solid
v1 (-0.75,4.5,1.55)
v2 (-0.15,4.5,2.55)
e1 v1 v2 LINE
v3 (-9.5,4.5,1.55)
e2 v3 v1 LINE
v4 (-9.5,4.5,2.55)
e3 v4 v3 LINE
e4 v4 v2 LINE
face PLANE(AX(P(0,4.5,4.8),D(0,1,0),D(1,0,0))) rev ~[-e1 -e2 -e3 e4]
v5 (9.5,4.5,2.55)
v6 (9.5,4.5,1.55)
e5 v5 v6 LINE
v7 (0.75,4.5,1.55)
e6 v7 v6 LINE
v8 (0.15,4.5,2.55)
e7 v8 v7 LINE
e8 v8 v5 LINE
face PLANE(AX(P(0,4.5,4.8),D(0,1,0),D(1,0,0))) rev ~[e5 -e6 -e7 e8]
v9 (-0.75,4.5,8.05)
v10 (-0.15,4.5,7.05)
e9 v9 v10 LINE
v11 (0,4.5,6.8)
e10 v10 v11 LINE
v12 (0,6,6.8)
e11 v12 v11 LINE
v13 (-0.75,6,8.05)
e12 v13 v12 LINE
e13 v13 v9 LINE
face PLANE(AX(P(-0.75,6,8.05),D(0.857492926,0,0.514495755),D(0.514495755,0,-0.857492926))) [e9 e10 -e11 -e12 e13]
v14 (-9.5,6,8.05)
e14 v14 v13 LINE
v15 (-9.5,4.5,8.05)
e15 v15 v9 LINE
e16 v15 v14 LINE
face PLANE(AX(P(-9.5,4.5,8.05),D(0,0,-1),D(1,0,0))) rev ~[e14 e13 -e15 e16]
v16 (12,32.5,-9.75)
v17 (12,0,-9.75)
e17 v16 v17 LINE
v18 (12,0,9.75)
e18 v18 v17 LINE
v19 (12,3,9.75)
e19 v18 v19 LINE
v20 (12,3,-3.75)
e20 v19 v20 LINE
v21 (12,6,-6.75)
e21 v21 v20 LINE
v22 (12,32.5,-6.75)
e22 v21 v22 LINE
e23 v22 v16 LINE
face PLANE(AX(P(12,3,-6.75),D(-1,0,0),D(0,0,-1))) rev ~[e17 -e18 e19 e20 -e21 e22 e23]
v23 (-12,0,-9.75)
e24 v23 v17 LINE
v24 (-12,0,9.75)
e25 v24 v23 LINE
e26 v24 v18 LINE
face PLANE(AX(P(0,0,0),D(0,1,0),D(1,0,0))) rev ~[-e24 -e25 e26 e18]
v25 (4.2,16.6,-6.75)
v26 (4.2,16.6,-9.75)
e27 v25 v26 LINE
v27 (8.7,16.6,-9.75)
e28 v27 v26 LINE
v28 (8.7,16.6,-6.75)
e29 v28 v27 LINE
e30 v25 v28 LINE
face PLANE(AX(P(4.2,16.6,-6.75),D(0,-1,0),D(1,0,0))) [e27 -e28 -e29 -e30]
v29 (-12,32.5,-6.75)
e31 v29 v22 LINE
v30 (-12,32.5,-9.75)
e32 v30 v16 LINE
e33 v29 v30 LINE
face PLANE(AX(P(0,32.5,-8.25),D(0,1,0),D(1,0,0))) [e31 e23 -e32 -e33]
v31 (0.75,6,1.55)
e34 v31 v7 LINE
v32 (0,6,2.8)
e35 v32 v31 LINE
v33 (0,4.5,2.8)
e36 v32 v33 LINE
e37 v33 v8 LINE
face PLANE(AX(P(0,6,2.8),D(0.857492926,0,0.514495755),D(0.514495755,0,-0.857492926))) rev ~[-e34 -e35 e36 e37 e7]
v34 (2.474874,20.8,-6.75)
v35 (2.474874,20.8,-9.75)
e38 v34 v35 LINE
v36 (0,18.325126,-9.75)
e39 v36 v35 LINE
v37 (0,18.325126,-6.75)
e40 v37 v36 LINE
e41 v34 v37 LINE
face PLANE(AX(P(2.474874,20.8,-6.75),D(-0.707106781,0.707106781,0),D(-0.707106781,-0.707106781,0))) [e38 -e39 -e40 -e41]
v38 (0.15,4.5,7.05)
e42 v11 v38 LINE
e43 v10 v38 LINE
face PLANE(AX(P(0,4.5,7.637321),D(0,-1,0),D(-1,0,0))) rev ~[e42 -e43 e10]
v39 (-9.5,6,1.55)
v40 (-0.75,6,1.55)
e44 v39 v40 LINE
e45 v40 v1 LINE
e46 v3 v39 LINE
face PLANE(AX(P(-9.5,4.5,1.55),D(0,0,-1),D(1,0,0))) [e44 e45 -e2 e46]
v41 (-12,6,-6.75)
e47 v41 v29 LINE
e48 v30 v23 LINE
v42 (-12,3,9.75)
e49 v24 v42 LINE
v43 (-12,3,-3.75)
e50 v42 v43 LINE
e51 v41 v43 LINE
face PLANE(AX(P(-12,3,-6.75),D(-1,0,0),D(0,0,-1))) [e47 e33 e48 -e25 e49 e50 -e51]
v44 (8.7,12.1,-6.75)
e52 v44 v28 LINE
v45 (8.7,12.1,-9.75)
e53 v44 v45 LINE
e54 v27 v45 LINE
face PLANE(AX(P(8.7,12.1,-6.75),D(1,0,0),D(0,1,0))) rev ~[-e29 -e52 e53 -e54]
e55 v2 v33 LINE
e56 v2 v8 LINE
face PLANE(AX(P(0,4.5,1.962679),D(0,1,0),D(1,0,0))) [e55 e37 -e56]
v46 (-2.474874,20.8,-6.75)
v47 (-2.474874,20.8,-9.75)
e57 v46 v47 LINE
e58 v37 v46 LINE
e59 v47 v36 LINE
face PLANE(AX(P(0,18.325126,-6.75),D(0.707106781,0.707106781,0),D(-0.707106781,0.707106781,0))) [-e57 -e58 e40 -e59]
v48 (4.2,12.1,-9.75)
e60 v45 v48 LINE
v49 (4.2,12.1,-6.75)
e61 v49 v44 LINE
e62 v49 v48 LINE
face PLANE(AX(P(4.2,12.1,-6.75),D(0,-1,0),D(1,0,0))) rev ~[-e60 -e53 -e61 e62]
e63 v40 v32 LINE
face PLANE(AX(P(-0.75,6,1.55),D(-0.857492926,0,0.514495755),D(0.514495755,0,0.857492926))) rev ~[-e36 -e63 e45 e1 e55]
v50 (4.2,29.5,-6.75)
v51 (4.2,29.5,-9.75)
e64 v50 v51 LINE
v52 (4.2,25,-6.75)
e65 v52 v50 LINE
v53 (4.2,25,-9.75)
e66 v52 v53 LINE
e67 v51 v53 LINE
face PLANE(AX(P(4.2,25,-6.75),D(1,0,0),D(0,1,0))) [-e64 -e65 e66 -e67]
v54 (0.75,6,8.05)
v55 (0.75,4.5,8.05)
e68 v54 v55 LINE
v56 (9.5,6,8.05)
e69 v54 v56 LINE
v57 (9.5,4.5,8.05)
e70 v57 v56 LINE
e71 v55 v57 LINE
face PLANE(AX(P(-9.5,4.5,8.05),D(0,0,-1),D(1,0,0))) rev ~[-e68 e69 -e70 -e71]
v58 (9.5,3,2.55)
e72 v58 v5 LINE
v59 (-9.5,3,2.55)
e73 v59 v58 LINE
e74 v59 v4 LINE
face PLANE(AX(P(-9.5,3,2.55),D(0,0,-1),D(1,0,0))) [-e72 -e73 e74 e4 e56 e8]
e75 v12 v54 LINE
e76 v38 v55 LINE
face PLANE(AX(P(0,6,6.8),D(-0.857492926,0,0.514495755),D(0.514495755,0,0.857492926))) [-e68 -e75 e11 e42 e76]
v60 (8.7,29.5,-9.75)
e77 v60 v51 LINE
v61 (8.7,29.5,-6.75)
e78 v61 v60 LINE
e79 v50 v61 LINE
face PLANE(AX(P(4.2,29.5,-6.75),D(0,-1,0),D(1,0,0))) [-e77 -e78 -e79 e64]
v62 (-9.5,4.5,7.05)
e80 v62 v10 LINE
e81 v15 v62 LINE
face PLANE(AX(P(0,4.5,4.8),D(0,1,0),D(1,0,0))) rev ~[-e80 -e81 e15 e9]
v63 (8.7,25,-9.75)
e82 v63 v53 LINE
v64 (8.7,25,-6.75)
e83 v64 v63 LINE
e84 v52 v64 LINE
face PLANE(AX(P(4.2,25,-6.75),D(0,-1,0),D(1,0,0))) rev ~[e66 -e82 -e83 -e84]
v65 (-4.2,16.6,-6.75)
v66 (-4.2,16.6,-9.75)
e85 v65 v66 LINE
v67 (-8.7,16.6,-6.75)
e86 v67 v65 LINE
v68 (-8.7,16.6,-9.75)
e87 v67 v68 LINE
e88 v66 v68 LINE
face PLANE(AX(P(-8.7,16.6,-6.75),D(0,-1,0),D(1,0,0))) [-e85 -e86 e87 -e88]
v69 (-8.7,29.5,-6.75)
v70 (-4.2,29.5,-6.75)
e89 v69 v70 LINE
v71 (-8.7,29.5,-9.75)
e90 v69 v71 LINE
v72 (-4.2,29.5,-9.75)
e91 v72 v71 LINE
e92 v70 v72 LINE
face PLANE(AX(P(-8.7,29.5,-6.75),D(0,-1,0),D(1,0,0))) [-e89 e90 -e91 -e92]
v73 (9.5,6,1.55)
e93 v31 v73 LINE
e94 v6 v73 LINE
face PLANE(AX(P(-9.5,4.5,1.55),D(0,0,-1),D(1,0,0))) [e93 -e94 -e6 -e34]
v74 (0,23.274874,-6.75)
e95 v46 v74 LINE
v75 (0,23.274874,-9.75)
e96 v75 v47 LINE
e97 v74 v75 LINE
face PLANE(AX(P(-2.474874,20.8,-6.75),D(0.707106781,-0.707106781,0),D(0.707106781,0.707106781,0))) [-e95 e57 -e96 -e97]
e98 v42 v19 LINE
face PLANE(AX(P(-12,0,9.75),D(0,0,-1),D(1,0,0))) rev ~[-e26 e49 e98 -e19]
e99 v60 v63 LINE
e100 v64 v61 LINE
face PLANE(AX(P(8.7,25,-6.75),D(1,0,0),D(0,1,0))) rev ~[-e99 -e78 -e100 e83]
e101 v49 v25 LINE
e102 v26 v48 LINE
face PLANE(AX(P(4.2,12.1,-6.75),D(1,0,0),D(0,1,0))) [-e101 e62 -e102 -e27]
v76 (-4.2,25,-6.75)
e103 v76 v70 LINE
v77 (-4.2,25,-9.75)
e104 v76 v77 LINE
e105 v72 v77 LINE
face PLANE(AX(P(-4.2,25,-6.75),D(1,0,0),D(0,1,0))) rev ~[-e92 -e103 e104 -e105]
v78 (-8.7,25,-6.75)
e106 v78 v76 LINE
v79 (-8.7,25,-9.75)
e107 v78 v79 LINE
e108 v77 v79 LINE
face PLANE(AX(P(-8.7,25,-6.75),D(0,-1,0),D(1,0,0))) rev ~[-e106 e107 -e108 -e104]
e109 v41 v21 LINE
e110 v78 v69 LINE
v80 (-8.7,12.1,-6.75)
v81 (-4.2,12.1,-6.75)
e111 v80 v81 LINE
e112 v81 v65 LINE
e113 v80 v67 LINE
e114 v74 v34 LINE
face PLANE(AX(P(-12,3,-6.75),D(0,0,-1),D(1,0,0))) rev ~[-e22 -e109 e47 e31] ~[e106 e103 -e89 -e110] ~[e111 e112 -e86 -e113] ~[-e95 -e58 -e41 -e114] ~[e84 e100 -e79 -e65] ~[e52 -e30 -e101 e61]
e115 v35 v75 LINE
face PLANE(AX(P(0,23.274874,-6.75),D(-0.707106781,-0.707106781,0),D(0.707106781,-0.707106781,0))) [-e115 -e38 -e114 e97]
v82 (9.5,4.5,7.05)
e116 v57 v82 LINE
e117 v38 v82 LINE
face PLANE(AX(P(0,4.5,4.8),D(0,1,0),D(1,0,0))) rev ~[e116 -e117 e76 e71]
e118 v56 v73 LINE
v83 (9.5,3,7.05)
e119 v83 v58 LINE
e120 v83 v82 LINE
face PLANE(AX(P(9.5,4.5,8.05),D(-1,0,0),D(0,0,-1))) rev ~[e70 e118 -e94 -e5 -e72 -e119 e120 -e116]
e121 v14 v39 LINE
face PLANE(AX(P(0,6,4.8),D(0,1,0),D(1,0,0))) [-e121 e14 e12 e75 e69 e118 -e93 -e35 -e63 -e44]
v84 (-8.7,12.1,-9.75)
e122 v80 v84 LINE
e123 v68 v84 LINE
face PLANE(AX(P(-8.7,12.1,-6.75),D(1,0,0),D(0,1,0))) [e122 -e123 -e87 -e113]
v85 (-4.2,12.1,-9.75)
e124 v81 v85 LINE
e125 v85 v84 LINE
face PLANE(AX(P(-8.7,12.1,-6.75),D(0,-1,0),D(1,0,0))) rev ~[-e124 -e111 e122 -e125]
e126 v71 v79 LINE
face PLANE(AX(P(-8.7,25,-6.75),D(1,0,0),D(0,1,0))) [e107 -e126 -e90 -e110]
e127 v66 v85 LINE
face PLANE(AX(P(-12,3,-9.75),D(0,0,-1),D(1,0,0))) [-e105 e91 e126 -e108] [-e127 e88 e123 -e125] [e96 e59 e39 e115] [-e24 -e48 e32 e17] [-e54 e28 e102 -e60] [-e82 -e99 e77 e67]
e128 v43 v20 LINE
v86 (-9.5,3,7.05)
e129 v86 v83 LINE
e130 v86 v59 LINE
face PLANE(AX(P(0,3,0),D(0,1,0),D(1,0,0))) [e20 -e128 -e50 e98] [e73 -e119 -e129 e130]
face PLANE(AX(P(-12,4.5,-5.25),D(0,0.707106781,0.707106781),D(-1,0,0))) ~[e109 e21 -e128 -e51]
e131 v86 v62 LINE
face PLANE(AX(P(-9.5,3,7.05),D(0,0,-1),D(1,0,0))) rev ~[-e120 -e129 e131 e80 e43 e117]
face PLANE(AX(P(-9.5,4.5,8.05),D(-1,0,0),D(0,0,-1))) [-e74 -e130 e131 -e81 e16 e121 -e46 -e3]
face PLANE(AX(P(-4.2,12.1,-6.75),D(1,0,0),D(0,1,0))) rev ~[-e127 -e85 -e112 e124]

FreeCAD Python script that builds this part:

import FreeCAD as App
import Part
import Sketcher

V = App.Vector
Q = App.Units.Quantity


def edges_at(feature, points):
    """Names of the edges that pass closest to the given points."""
    edges = feature.Shape.Edges
    near = lambda p: min(range(len(edges)), key=lambda i: edges[i].distToShape(Part.Vertex(*p))[0])
    return sorted({f"Edge{near(p) + 1}" for p in points})


def add_polygon(sketch, points):
    """Adds a closed chain of lines whose ends are joined by coincident constraints."""
    first, n = sketch.GeometryCount, len(points)
    for a, b in zip(points, points[1:] + points[:1]):
        sketch.addGeometry(Part.LineSegment(App.Vector(*a, 0), App.Vector(*b, 0)), False)
    for i in range(n):
        sketch.addConstraint(Sketcher.Constraint("Coincident", first + i, 2, first + (i + 1) % n, 1))

doc = App.newDocument("Part")
body = doc.addObject("PartDesign::Body", "Body")

# Sketch on XZ plane
sketch1 = body.newObject("Sketcher::SketchObject", "Sketch")
sketch1.AttachmentSupport = (doc.getObject("XZ_Plane"), [""])
sketch1.MapMode = "FlatFace"
add_polygon(sketch1, [(-12, -10), (-12, 10), (12, 10), (12, -10)])  # lines 0-3
sketch1.addConstraint(Sketcher.Constraint("Vertical", 0))
sketch1.addConstraint(Sketcher.Constraint("Horizontal", 1))
sketch1.addConstraint(Sketcher.Constraint("Vertical", 2))
sketch1.addConstraint(Sketcher.Constraint("Horizontal", 3))
sketch1.addConstraint(Sketcher.Constraint("Symmetric", 0, 2, 2, 2, -1, 1))
sketch1.addConstraint(Sketcher.Constraint("DistanceX", 1, 1, 1, 2, Q("24 mm")))
sketch1.addConstraint(Sketcher.Constraint("DistanceY", 0, 1, 0, 2, Q("19.5 mm")))
pad1 = body.newObject("PartDesign::Pad", "Pad")
pad1.Profile = sketch1
pad1.Length = 3
pad1.Reversed = True

# Sketch on XZ plane
sketch2 = body.newObject("Sketcher::SketchObject", "Sketch001")
sketch2.AttachmentSupport = (doc.getObject("XZ_Plane"), [""])
sketch2.MapMode = "FlatFace"
sketch2.AttachmentOffset = App.Placement(V(0, 0, -3), App.Rotation())
add_polygon(sketch2, [(-9.5, 2.5), (-9.5, 7), (9.5, 7), (9.5, 2.5)])  # lines 0-3
sketch2.addConstraint(Sketcher.Constraint("Vertical", 0))
sketch2.addConstraint(Sketcher.Constraint("Horizontal", 1))
sketch2.addConstraint(Sketcher.Constraint("Vertical", 2))
sketch2.addConstraint(Sketcher.Constraint("Horizontal", 3))
sketch2.addConstraint(Sketcher.Constraint("DistanceX", 1, 1, 1, 2, Q("19 mm")))
sketch2.addConstraint(Sketcher.Constraint("DistanceY", 0, 1, 0, 2, Q("4.5 mm")))
sketch2.addConstraint(Sketcher.Constraint("DistanceX", 0, 2, -1, 1, Q("9.5 mm")))
sketch2.addConstraint(Sketcher.Constraint("DistanceY", -1, 1, 0, 2, Q("7.05 mm")))
pad2 = body.newObject("PartDesign::Pad", "Pad001")
pad2.Profile = sketch2
pad2.Length = 1.5
pad2.Reversed = True

# Sketch on XZ plane
sketch3 = body.newObject("Sketcher::SketchObject", "Sketch002")
sketch3.AttachmentSupport = (doc.getObject("XZ_Plane"), [""])
sketch3.MapMode = "FlatFace"
sketch3.AttachmentOffset = App.Placement(V(0, 0, -4.5), App.Rotation())
add_polygon(sketch3, [(-10, 2), (-10, 8), (10, 8), (10, 2)])  # lines 0-3
sketch3.addConstraint(Sketcher.Constraint("Vertical", 0))
sketch3.addConstraint(Sketcher.Constraint("Horizontal", 1))
sketch3.addConstraint(Sketcher.Constraint("Vertical", 2))
sketch3.addConstraint(Sketcher.Constraint("Horizontal", 3))
sketch3.addConstraint(Sketcher.Constraint("DistanceX", 1, 1, 1, 2, Q("19 mm")))
sketch3.addConstraint(Sketcher.Constraint("DistanceY", 0, 1, 0, 2, Q("6.5 mm")))
sketch3.addConstraint(Sketcher.Constraint("DistanceX", 0, 2, -1, 1, Q("9.5 mm")))
sketch3.addConstraint(Sketcher.Constraint("DistanceY", -1, 1, 0, 2, Q("8.05 mm")))
pad3 = body.newObject("PartDesign::Pad", "Pad002")
pad3.Profile = sketch3
pad3.Length = 1.5
pad3.Reversed = True

# Sketch on XZ plane
sketch4 = body.newObject("Sketcher::SketchObject", "Sketch003")
sketch4.AttachmentSupport = (doc.getObject("XZ_Plane"), [""])
sketch4.MapMode = "FlatFace"
sketch4.AttachmentOffset = App.Placement(V(0, 0, -6), App.Rotation())
add_polygon(sketch4, [(0, 2.8), (0.8, 1.6), (-0.8, 1.6)])  # lines 0-2
add_polygon(sketch4, [(0.8, 8.1), (0, 6.8), (-0.8, 8.1)])  # lines 3-5
sketch4.addConstraint(Sketcher.Constraint("Horizontal", 1))
sketch4.addConstraint(Sketcher.Constraint("Horizontal", 5))
sketch4.addConstraint(Sketcher.Constraint("PointOnObject", 2, 2, -2))
sketch4.addConstraint(Sketcher.Constraint("PointOnObject", 3, 2, -2))
sketch4.addConstraint(Sketcher.Constraint("Parallel", 2, 3))
sketch4.addConstraint(Sketcher.Constraint("Parallel", 0, 4))
sketch4.addConstraint(Sketcher.Constraint("Vertical", 1, 2, 4, 2))
sketch4.addConstraint(Sketcher.Constraint("Vertical", 0, 2, 5, 2))
sketch4.addConstraint(Sketcher.Constraint("DistanceX", 1, 2, 1, 1, Q("1.5 mm")))
sketch4.addConstraint(Sketcher.Constraint("DistanceY", 2, 2, 3, 2, Q("4 mm")))
sketch4.addConstraint(Sketcher.Constraint("DistanceY", -1, 1, 2, 2, Q("2.8 mm")))
sketch4.addConstraint(Sketcher.Constraint("DistanceY", 1, 2, 4, 2, Q("6.5 mm")))
pocket1 = body.newObject("PartDesign::Pocket", "Pocket")
pocket1.Profile = sketch4
pocket1.Length = 1.5
pocket1.Reversed = True

# Sketch on XZ plane
sketch5 = body.newObject("Sketcher::SketchObject", "Sketch004")
sketch5.AttachmentSupport = (doc.getObject("XZ_Plane"), [""])
sketch5.MapMode = "FlatFace"
sketch5.AttachmentOffset = App.Placement(V(0, 0, -3), App.Rotation())
add_polygon(sketch5, [(-12, -9.8), (-12, -6.8), (12, -6.8), (12, -9.8)])  # lines 0-3
sketch5.addConstraint(Sketcher.Constraint("Vertical", 0))
sketch5.addConstraint(Sketcher.Constraint("Horizontal", 1))
sketch5.addConstraint(Sketcher.Constraint("Vertical", 2))
sketch5.addConstraint(Sketcher.Constraint("Horizontal", 3))
sketch5.addConstraint(Sketcher.Constraint("DistanceX", 1, 1, 1, 2, Q("24 mm")))
sketch5.addConstraint(Sketcher.Constraint("DistanceY", 0, 1, 0, 2, Q("3 mm")))
sketch5.addConstraint(Sketcher.Constraint("DistanceX", 0, 2, -1, 1, Q("12 mm")))
sketch5.addConstraint(Sketcher.Constraint("DistanceY", 0, 2, -1, 1, Q("6.75 mm")))
pad4 = body.newObject("PartDesign::Pad", "Pad003")
pad4.Profile = sketch5
pad4.Length = 29.5
pad4.Reversed = True

# Sketch on XY plane
sketch6 = body.newObject("Sketcher::SketchObject", "Sketch005")
sketch6.AttachmentSupport = (doc.getObject("XY_Plane"), [""])
sketch6.MapMode = "FlatFace"
sketch6.AttachmentOffset = App.Placement(V(0, 0, -6.75), App.Rotation())
add_polygon(sketch6, [(-8.7, 29.5), (-8.7, 25), (-4.2, 25), (-4.2, 29.5)])  # lines 0-3
add_polygon(sketch6, [(-8.7, 16.6), (-8.7, 12.1), (-4.2, 12.1), (-4.2, 16.6)])  # lines 4-7
add_polygon(sketch6, [(4.2, 16.6), (4.2, 12.1), (8.7, 12.1), (8.7, 16.6)])  # lines 8-11
add_polygon(sketch6, [(4.2, 29.5), (4.2, 25), (8.7, 25), (8.7, 29.5)])  # lines 12-15
add_polygon(sketch6, [(0, 23.3), (-2.5, 20.8), (0, 18.3), (2.5, 20.8)])  # lines 16-19
sketch6.addConstraint(Sketcher.Constraint("Vertical", 0))
sketch6.addConstraint(Sketcher.Constraint("Horizontal", 1))
sketch6.addConstraint(Sketcher.Constraint("Vertical", 2))
sketch6.addConstraint(Sketcher.Constraint("Horizontal", 3))
sketch6.addConstraint(Sketcher.Constraint("Vertical", 4))
sketch6.addConstraint(Sketcher.Constraint("Horizontal", 5))
sketch6.addConstraint(Sketcher.Constraint("Vertical", 6))
sketch6.addConstraint(Sketcher.Constraint("Horizontal", 7))
sketch6.addConstraint(Sketcher.Constraint("Vertical", 8))
sketch6.addConstraint(Sketcher.Constraint("Horizontal", 9))
sketch6.addConstraint(Sketcher.Constraint("Vertical", 10))
sketch6.addConstraint(Sketcher.Constraint("Horizontal", 11))
sketch6.addConstraint(Sketcher.Constraint("Vertical", 12))
sketch6.addConstraint(Sketcher.Constraint("Horizontal", 13))
sketch6.addConstraint(Sketcher.Constraint("Vertical", 14))
sketch6.addConstraint(Sketcher.Constraint("Horizontal", 15))
sketch6.addConstraint(Sketcher.Constraint("Symmetric", 5, 2, 8, 2, -2))
sketch6.addConstraint(Sketcher.Constraint("Symmetric", 7, 2, 10, 2, -2))
sketch6.addConstraint(Sketcher.Constraint("Symmetric", 1, 2, 12, 2, -2))
sketch6.addConstraint(Sketcher.Constraint("Symmetric", 3, 2, 14, 2, -2))
sketch6.addConstraint(Sketcher.Constraint("Symmetric", 16, 2, 18, 2, -2))
sketch6.addConstraint(Sketcher.Constraint("PointOnObject", 17, 2, -2))
sketch6.addConstraint(Sketcher.Constraint("PointOnObject", 19, 2, -2))
sketch6.addConstraint(Sketcher.Constraint("Perpendicular", 16, 17))
sketch6.addConstraint(Sketcher.Constraint("Perpendicular", 17, 18))
sketch6.addConstraint(Sketcher.Constraint("Vertical", 3, 2, 4, 2))
sketch6.addConstraint(Sketcher.Constraint("Vertical", 2, 2, 5, 2))
sketch6.addConstraint(Sketcher.Constraint("Equal", 15, 0))
sketch6.addConstraint(Sketcher.Constraint("Equal", 2, 4))
sketch6.addConstraint(Sketcher.Constraint("DistanceX", 1, 1, 1, 2, Q("4.5 mm")))
sketch6.addConstraint(Sketcher.Constraint("DistanceY", -1, 1, 0, 2, Q("25 mm")))
sketch6.addConstraint(Sketcher.Constraint("Distance", 16, Q("3.5 mm")))
sketch6.addConstraint(Sketcher.Constraint("DistanceX", 0, 2, -1, 1, Q("8.7 mm")))
sketch6.addConstraint(Sketcher.Constraint("DistanceY", -1, 1, 4, 2, Q("12.1 mm")))
sketch6.addConstraint(Sketcher.Constraint("DistanceY", -1, 1, 16, 2, Q("20.8 mm")))
pocket2 = body.newObject("PartDesign::Pocket", "Pocket001")
pocket2.Profile = sketch6
pocket2.Type = "ThroughAll"
doc.recompute()

chamfer = body.newObject("PartDesign::Chamfer", "Chamfer")
chamfer.Base = (pocket2, edges_at(pocket2, [(0, 3, -6.75)]))
chamfer.Size = 3

doc.recompute()
